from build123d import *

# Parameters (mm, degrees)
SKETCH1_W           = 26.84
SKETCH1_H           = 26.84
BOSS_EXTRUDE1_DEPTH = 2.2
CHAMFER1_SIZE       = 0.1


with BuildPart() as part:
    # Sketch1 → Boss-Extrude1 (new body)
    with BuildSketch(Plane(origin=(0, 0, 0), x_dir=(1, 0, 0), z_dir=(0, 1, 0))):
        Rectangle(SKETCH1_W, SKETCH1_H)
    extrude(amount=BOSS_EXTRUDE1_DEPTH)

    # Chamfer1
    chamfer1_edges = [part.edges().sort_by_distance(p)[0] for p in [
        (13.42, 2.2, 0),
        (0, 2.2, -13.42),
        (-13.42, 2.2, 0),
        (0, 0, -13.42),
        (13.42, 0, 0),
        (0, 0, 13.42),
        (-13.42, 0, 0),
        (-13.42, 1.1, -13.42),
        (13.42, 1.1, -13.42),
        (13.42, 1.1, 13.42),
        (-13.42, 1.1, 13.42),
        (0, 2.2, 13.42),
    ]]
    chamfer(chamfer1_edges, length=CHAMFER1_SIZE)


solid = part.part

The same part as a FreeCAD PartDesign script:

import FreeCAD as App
import Part
import Sketcher

V = App.Vector
Q = App.Units.Quantity


def add_polygon(sketch, points):
    """Adds a closed chain of lines whose ends are joined by coincident constraints."""
    first, n = sketch.GeometryCount, len(points)
    for a, b in zip(points, points[1:] + points[:1]):
        sketch.addGeometry(Part.LineSegment(App.Vector(*a, 0), App.Vector(*b, 0)), False)
    for i in range(n):
        sketch.addConstraint(Sketcher.Constraint("Coincident", first + i, 2, first + (i + 1) % n, 1))

doc = App.newDocument("Part")
body = doc.addObject("PartDesign::Body", "Body")

sketch1 = body.newObject("Sketcher::SketchObject", "Sketch")
sketch1.AttachmentSupport = (doc.getObject("XZ_Plane"), [""])
sketch1.MapMode = "FlatFace"
add_polygon(sketch1, [(-13.42, -13.42), (-13.42, 13.42), (13.42, 13.42), (13.42, -13.42)])
sketch1.addConstraint([
    Sketcher.Constraint("Vertical", 0),
    Sketcher.Constraint("Horizontal", 1),
    Sketcher.Constraint("Vertical", 2),
    Sketcher.Constraint("Horizontal", 3),
    Sketcher.Constraint("Symmetric", 0, 2, 2, 2, -1, 1),
    Sketcher.Constraint("Equal", 3, 0),
    Sketcher.Constraint("DistanceX", 1, 1, 1, 2, Q("26.84 mm")),
])
pad1 = body.newObject("PartDesign::Pad", "Pad")
pad1.Profile = sketch1
pad1.Length = 2.2
pad1.Reversed = True
doc.recompute()

chamfer = body.newObject("PartDesign::Chamfer", "Chamfer")
chamfer.Base = (pad1, ["Edge1"])
chamfer.UseAllEdges = True
chamfer.Size = 0.1

doc.recompute()
